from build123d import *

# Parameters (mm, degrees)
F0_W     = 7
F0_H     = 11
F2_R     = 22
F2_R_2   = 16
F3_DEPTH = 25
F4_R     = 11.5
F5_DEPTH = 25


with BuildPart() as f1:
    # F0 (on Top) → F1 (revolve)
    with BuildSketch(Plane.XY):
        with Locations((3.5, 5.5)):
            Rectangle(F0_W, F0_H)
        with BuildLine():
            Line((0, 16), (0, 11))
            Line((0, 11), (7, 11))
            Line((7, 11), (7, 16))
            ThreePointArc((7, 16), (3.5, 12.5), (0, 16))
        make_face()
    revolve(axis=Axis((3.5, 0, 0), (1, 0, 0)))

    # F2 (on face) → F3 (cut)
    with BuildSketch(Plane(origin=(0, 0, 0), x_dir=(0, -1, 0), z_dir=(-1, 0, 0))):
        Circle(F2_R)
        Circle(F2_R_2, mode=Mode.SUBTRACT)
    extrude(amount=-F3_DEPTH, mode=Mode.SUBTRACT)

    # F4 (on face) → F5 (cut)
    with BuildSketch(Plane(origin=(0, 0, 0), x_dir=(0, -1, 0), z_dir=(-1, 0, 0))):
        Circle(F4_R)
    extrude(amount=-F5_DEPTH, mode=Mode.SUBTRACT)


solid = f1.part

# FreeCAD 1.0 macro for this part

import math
import FreeCAD as App
import Part
import Sketcher
Q = App.Units.Quantity

doc = App.newDocument("Part")
body = doc.addObject("PartDesign::Body", "Body")

# Sketch on XY plane
sketch1 = body.newObject("Sketcher::SketchObject", "Sketch")
sketch1.AttachmentSupport = (doc.getObject("XY_Plane"), [""])
sketch1.MapMode = "FlatFace"
sketch1.addGeometry([
    Part.LineSegment(App.Vector(0, 0, 0), App.Vector(7, 0, 0)),
    Part.LineSegment(App.Vector(7, 0, 0), App.Vector(7, 16, 0)),
    Part.ArcOfCircle(Part.Circle(App.Vector(3.5, 16, 0), App.Vector(0, 0, 1), 3.5), math.radians(180), math.radians(360)),
    Part.LineSegment(App.Vector(0, 16, 0), App.Vector(0, 0, 0)),
], False)
sketch1.addConstraint([
    Sketcher.Constraint("Coincident", 0, 2, 1, 1),
    Sketcher.Constraint("Tangent", 1, 2, 2, 2),
    Sketcher.Constraint("Tangent", 2, 1, 3, 1),
    Sketcher.Constraint("Coincident", 3, 2, 0, 1),
    Sketcher.Constraint("Horizontal", 0),
    Sketcher.Constraint("Vertical", 1),
    Sketcher.Constraint("Vertical", 3),
    Sketcher.Constraint("Coincident", 3, 2, -1, 1),
    Sketcher.Constraint("Radius", 2, Q("3.5 mm")),
    Sketcher.Constraint("DistanceY", 1, 1, 1, 2, Q("16 mm")),
])
revolution = body.newObject("PartDesign::Revolution", "Revolution")
revolution.Profile = sketch1
revolution.ReferenceAxis = (sketch1, ["H_Axis"])
revolution.Angle = 360

# Sketch on YZ plane
sketch2 = body.newObject("Sketcher::SketchObject", "Sketch001")
sketch2.AttachmentSupport = (doc.getObject("YZ_Plane"), [""])
sketch2.MapMode = "FlatFace"
sketch2.addGeometry([
    Part.Circle(App.Vector(0, 0, 0), App.Vector(0, 0, 1), 22),
    Part.Circle(App.Vector(0, 0, 0), App.Vector(0, 0, 1), 16),
], False)
sketch2.addConstraint([
    Sketcher.Constraint("Coincident", 0, 3, -1, 1),
    Sketcher.Constraint("Coincident", 1, 3, -1, 1),
    Sketcher.Constraint("Diameter", 0, Q("44 mm")),
    Sketcher.Constraint("Diameter", 1, Q("32 mm")),
])
pocket1 = body.newObject("PartDesign::Pocket", "Pocket")
pocket1.Profile = sketch2
pocket1.Length = 25
pocket1.Reversed = True

# Sketch on YZ plane
sketch3 = body.newObject("Sketcher::SketchObject", "Sketch002")
sketch3.AttachmentSupport = (doc.getObject("YZ_Plane"), [""])
sketch3.MapMode = "FlatFace"
sketch3.addGeometry(Part.Circle(App.Vector(0, 0, 0), App.Vector(0, 0, 1), 11.5), False)
sketch3.addConstraint([
    Sketcher.Constraint("Coincident", 0, 3, -1, 1),
    Sketcher.Constraint("Diameter", 0, Q("23 mm")),
])
pocket2 = body.newObject("PartDesign::Pocket", "Pocket001")
pocket2.Profile = sketch3
pocket2.Length = 25
pocket2.Reversed = True

doc.recompute()
